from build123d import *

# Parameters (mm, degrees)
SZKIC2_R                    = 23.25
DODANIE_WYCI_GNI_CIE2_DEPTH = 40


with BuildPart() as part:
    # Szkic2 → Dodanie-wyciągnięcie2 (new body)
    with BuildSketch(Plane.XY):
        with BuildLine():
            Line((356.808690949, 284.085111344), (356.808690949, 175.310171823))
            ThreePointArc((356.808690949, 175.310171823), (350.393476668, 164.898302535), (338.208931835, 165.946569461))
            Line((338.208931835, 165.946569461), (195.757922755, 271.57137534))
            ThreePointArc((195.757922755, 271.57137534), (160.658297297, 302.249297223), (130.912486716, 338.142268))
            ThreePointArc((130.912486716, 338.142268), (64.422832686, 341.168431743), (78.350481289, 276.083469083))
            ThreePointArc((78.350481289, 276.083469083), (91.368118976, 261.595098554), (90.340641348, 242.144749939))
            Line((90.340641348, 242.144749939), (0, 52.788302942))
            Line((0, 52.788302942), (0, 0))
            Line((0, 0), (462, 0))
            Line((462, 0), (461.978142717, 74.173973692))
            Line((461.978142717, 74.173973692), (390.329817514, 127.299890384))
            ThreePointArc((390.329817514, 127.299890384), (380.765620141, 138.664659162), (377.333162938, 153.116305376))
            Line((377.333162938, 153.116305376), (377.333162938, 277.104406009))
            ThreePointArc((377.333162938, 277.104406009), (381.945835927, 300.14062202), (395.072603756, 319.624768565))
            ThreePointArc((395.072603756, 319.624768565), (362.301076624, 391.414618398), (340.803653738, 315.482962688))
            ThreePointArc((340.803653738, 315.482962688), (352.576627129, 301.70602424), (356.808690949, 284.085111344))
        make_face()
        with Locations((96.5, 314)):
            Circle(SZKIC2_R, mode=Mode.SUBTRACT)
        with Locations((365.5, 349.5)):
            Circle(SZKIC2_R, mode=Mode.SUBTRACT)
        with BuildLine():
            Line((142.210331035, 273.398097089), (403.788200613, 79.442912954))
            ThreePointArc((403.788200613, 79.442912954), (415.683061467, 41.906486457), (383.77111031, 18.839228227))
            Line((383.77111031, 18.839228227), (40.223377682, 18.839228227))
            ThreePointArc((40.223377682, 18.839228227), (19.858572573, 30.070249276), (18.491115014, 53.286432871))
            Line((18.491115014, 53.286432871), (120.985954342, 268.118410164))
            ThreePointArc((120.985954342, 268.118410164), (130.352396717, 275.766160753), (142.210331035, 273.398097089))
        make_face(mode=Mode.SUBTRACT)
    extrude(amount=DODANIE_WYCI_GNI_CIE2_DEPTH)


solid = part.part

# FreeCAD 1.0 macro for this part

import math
import FreeCAD as App
import Part
import Sketcher

V = App.Vector
Q = App.Units.Quantity

doc = App.newDocument("Part")
params = doc.addObject("Spreadsheet::Sheet", "Params")
for row, (alias, value) in enumerate([
    ("sketch1_diameter", "46.5 mm"),
    ("sketch1_width", "462 mm"),
    ("pad1_length", "40 mm"),
], start=1):
    params.set(f"A{row}", alias)
    params.set(f"B{row}", "=" + value)
    params.setAlias(f"B{row}", alias)

body = doc.addObject("PartDesign::Body", "Body")

# Sketch on XY plane
sketch1 = body.newObject("Sketcher::SketchObject", "Sketch")
sketch1.AttachmentSupport = (doc.getObject("XY_Plane"), [""])
sketch1.MapMode = "FlatFace"
sketch1.addGeometry([
    Part.LineSegment(V(357, 284, 0), V(357, 175, 0)),  # 0
    Part.ArcOfCircle(Part.Circle(V(345, 175, 0), V(0, 0, 1), 12), math.radians(-127), math.radians(0)),  # 1
    Part.LineSegment(V(338, 166, 0), V(196, 272, 0)),  # 2
    Part.ArcOfCircle(Part.Circle(V(369, 505, 0), V(0, 0, 1), 291), math.radians(-144.95), math.radians(-126.56)),  # 3
    Part.ArcOfCircle(Part.Circle(V(96, 314, 0), V(0, 0, 1), 42), math.radians(35), math.radians(244)),  # 4
    Part.ArcOfCircle(Part.Circle(V(67, 253, 0), V(0, 0, 1), 25), math.radians(-26), math.radians(64)),  # 5
    Part.LineSegment(V(90, 242, 0), V(0, 53, 0)),  # 6
    Part.LineSegment(V(0, 53, 0), V(0, 0, 0)),  # 7
    Part.LineSegment(V(0, 0, 0), V(462, 0, 0)),  # 8
    Part.LineSegment(V(462, 0, 0), V(462, 74, 0)),  # 9
    Part.LineSegment(V(462, 74, 0), V(390, 127, 0)),  # 10
    Part.ArcOfCircle(Part.Circle(V(409, 153, 0), V(0, 0, 1), 32), math.radians(180), math.radians(233)),  # 11
    Part.LineSegment(V(377, 153, 0), V(377, 277, 0)),  # 12
    Part.ArcOfCircle(Part.Circle(V(437, 277, 0), V(0, 0, 1), 60), math.radians(135), math.radians(180)),  # 13
    Part.ArcOfCircle(Part.Circle(V(366, 350, 0), V(0, 0, 1), 42), math.radians(-45), math.radians(234)),  # 14
    Part.ArcOfCircle(Part.Circle(V(318, 284, 0), V(0, 0, 1), 39), math.radians(0), math.radians(54)),  # 15
    Part.ArcOfCircle(Part.Circle(V(134, 262, 0), V(0, 0, 1), 14), math.radians(53), math.radians(154)),  # 16
    Part.LineSegment(V(142, 273, 0), V(404, 79, 0)),  # 17
    Part.ArcOfCircle(Part.Circle(V(384, 52, 0), V(0, 0, 1), 34), math.radians(-90), math.radians(53)),  # 18
    Part.LineSegment(V(384, 19, 0), V(40, 19, 0)),  # 19
    Part.ArcOfCircle(Part.Circle(V(40, 43, 0), V(0, 0, 1), 24), math.radians(154), math.radians(270)),  # 20
    Part.LineSegment(V(18, 53, 0), V(121, 268, 0)),  # 21
    Part.Circle(V(96, 314, 0), V(0, 0, 1), 23),  # 22
    Part.Circle(V(366, 350, 0), V(0, 0, 1), 23),  # 23
], False)
sketch1.addConstraint([
    Sketcher.Constraint("Tangent", 0, 2, 1, 2),
    Sketcher.Constraint("Tangent", 1, 1, 2, 1),
    Sketcher.Constraint("Tangent", 2, 2, 3, 2),
    Sketcher.Constraint("Tangent", 3, 1, 4, 1),
    Sketcher.Constraint("Tangent", 4, 2, 5, 2),
    Sketcher.Constraint("Tangent", 5, 1, 6, 1),
    Sketcher.Constraint("Coincident", 6, 2, 7, 1),
    Sketcher.Constraint("Coincident", 7, 2, 8, 1),
    Sketcher.Constraint("Coincident", 8, 2, 9, 1),
    Sketcher.Constraint("Coincident", 9, 2, 10, 1),
    Sketcher.Constraint("Tangent", 10, 2, 11, 2),
    Sketcher.Constraint("Tangent", 11, 1, 12, 1),
    Sketcher.Constraint("Tangent", 12, 2, 13, 2),
    Sketcher.Constraint("Tangent", 13, 1, 14, 1),
    Sketcher.Constraint("Tangent", 14, 2, 15, 2),
    Sketcher.Constraint("Tangent", 15, 1, 0, 1),
    Sketcher.Constraint("Tangent", 16, 1, 17, 1),
    Sketcher.Constraint("Tangent", 17, 2, 18, 2),
    Sketcher.Constraint("Tangent", 18, 1, 19, 1),
    Sketcher.Constraint("Tangent", 19, 2, 20, 2),
    Sketcher.Constraint("Tangent", 20, 1, 21, 1),
    Sketcher.Constraint("Tangent", 21, 2, 16, 2),
    Sketcher.Constraint("Vertical", 0),
    Sketcher.Constraint("Vertical", 7),
    Sketcher.Constraint("Horizontal", 8),
    Sketcher.Constraint("Vertical", 12),
    Sketcher.Constraint("Horizontal", 19),
    Sketcher.Constraint("Coincident", 7, 2, -1, 1),
    Sketcher.Constraint("Coincident", 22, 3, 4, 3),
    Sketcher.Constraint("Coincident", 23, 3, 14, 3),
    Sketcher.Constraint("Equal", 4, 14),
    Sketcher.Constraint("Equal", 22, 23),
    Sketcher.Constraint("Parallel", 2, 10),
    Sketcher.Constraint("Parallel", 10, 17),
    Sketcher.Constraint("Parallel", 6, 21),
    Sketcher.Constraint("Diameter", 22, Q("46.5 mm")),
    Sketcher.Constraint("DistanceX", 8, 1, 8, 2, Q("462 mm")),
    Sketcher.Constraint("DistanceY", -1, 1, 4, 3, Q("314 mm")),
    Sketcher.Constraint("Radius", 16, Q("14.167002 mm")),
    Sketcher.Constraint("DistanceX", 4, 3, 14, 3, Q("269 mm")),
    Sketcher.Constraint("DistanceX", -1, 1, 4, 3, Q("96.5 mm")),
    Sketcher.Constraint("DistanceY", -1, 1, 14, 3, Q("349.5 mm")),
    Sketcher.Constraint("Radius", 1, Q("11.65682 mm")),
    Sketcher.Constraint("Radius", 5, Q("25.468278 mm")),
    Sketcher.Constraint("Radius", 11, Q("32.139052 mm")),
    Sketcher.Constraint("DistanceY", 12, 1, 12, 2, Q("123.988101 mm")),
    Sketcher.Constraint("Radius", 3, Q("290.758685 mm")),
    Sketcher.Constraint("Radius", 4, Q("42.036512 mm")),
    Sketcher.Constraint("Radius", 13, Q("59.829084 mm")),
    Sketcher.Constraint("Radius", 15, Q("38.799856 mm")),
    Sketcher.Constraint("Radius", 18, Q("33.607614 mm")),
    Sketcher.Constraint("Radius", 20, Q("24.078894 mm")),
    Sketcher.Constraint("DistanceX", 3, 3, 11, 3, Q("40.534999 mm")),
    Sketcher.Constraint("DistanceY", 0, 2, 0, 1, Q("108.77494 mm")),
    Sketcher.Constraint("DistanceX", -1, 1, 16, 3, Q("133.772298 mm")),
    Sketcher.Constraint("DistanceX", -1, 1, 17, 2, Q("403.788201 mm")),
    Sketcher.Constraint("DistanceX", 5, 3, 16, 3, Q("66.4179 mm")),
    Sketcher.Constraint("DistanceY", 9, 2, 0, 2, Q("101.136198 mm")),
    Sketcher.Constraint("DistanceY", 19, 2, 5, 3, Q("234.272098 mm")),
    Sketcher.Constraint("Distance", 21, Q("238.029348 mm")),
    Sketcher.Constraint("DistanceX", 19, 2, 19, 1, Q("343.547733 mm")),
    Sketcher.Constraint("DistanceX", -1, 1, 1, 3, Q("345.151871 mm")),
])
sketch1.setExpression("Constraints[35]", "Params.sketch1_diameter")
sketch1.setExpression("Constraints[36]", "Params.sketch1_width")
pad1 = body.newObject("PartDesign::Pad", "Pad")
pad1.Profile = sketch1
pad1.setExpression("Length", "Params.pad1_length")

doc.recompute()
